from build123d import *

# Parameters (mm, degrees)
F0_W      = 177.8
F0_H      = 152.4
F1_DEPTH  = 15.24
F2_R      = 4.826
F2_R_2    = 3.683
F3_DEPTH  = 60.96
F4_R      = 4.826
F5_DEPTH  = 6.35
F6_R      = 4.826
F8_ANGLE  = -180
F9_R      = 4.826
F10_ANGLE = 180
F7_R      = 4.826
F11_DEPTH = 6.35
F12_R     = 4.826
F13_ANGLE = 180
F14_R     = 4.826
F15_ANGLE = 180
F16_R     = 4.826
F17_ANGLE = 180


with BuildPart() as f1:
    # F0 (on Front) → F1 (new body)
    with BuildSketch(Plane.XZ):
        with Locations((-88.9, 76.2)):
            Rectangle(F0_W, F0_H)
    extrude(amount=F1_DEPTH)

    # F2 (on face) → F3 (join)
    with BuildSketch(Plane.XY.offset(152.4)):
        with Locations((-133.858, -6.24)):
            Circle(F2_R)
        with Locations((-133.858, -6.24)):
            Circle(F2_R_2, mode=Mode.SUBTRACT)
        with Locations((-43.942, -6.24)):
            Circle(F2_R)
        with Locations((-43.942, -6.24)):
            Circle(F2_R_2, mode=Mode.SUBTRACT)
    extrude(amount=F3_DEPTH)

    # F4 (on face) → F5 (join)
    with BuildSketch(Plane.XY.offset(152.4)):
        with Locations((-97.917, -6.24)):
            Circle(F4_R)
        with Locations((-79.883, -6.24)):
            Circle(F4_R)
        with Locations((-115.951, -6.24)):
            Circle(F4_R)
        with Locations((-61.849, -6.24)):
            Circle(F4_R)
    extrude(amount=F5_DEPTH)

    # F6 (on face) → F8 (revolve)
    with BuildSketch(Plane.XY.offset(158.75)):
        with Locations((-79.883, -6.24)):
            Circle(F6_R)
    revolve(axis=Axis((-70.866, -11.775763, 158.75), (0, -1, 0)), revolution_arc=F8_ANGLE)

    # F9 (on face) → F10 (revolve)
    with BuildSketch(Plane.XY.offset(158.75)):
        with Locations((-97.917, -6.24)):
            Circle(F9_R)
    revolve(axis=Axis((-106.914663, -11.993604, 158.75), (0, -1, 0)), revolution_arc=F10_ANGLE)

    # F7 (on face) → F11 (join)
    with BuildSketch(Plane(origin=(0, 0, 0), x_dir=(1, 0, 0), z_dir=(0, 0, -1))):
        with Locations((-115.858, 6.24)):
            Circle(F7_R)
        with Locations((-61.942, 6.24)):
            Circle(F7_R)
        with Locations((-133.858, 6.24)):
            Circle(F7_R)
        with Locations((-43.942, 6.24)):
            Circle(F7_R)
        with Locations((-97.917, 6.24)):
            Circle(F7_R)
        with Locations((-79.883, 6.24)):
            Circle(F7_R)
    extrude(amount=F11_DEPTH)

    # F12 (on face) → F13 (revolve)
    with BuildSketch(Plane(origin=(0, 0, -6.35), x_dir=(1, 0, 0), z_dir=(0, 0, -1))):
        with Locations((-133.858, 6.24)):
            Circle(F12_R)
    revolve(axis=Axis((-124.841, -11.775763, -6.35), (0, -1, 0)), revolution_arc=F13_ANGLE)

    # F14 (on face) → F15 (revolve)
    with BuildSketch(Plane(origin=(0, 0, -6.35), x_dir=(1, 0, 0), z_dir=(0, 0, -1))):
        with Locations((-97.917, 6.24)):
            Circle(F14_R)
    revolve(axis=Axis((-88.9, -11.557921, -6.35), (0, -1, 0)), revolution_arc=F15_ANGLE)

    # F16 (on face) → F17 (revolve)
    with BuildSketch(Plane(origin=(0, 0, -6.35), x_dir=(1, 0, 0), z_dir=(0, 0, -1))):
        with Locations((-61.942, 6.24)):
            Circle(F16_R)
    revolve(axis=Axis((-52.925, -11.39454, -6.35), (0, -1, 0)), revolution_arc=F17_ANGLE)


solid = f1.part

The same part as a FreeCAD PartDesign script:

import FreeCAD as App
import Part
import Sketcher
from FreeCAD import Vector
Q = App.Units.Quantity

doc = App.newDocument("Part")
body = doc.addObject("PartDesign::Body", "Body")

# Sketch on XZ plane
sketch1 = body.newObject("Sketcher::SketchObject", "Sketch")
sketch1.AttachmentSupport = (doc.getObject("XZ_Plane"), [""])
sketch1.MapMode = "FlatFace"
sketch1.addGeometry(Part.LineSegment(Vector(-178, 152, 0), Vector(-178, 0, 0)), False)
sketch1.addGeometry(Part.LineSegment(Vector(-178, 0, 0), Vector(0, 0, 0)), False)
sketch1.addGeometry(Part.LineSegment(Vector(0, 0, 0), Vector(0, 152, 0)), False)
sketch1.addGeometry(Part.LineSegment(Vector(0, 152, 0), Vector(-178, 152, 0)), False)
sketch1.addConstraint(Sketcher.Constraint("Coincident", 0, 2, 1, 1))
sketch1.addConstraint(Sketcher.Constraint("Coincident", 1, 2, 2, 1))
sketch1.addConstraint(Sketcher.Constraint("Coincident", 2, 2, 3, 1))
sketch1.addConstraint(Sketcher.Constraint("Coincident", 3, 2, 0, 1))
sketch1.addConstraint(Sketcher.Constraint("Vertical", 0))
sketch1.addConstraint(Sketcher.Constraint("Horizontal", 1))
sketch1.addConstraint(Sketcher.Constraint("Vertical", 2))
sketch1.addConstraint(Sketcher.Constraint("Horizontal", 3))
sketch1.addConstraint(Sketcher.Constraint("Coincident", 1, 2, -1, 1))
sketch1.addConstraint(Sketcher.Constraint("DistanceX", 1, 1, 1, 2, Q("7 in")))
sketch1.addConstraint(Sketcher.Constraint("DistanceY", 0, 2, 0, 1, Q("6 in")))
pad1 = body.newObject("PartDesign::Pad", "Pad")
pad1.Profile = sketch1
pad1.Length = Q("0.6 in")

# Sketch on XY plane
sketch2 = body.newObject("Sketcher::SketchObject", "Sketch001")
sketch2.AttachmentSupport = (doc.getObject("XY_Plane"), [""])
sketch2.MapMode = "FlatFace"
sketch2.AttachmentOffset = App.Placement(Vector(0, 0, 6 * 25.4), App.Rotation())
sketch2.addGeometry(Part.Circle(Vector(-133.9, -6.2, 0), Vector(0, 0, 1), 4.8), False)
sketch2.addGeometry(Part.Circle(Vector(-133.9, -6.2, 0), Vector(0, 0, 1), 3.7), False)
sketch2.addGeometry(Part.Circle(Vector(-43.9, -6.2, 0), Vector(0, 0, 1), 4.8), False)
sketch2.addGeometry(Part.Circle(Vector(-43.9, -6.2, 0), Vector(0, 0, 1), 3.7), False)
sketch2.addConstraint(Sketcher.Constraint("Coincident", 1, 3, 0, 3))
sketch2.addConstraint(Sketcher.Constraint("Coincident", 3, 3, 2, 3))
sketch2.addConstraint(Sketcher.Constraint("Equal", 0, 2))
sketch2.addConstraint(Sketcher.Constraint("Equal", 1, 3))
sketch2.addConstraint(Sketcher.Constraint("Horizontal", 1, 3, 2, 3))
sketch2.addConstraint(Sketcher.Constraint("Diameter", 0, Q("0.38 in")))
sketch2.addConstraint(Sketcher.Constraint("Diameter", 1, Q("0.29 in")))
sketch2.addConstraint(Sketcher.Constraint("DistanceX", 0, 3, -1, 1, Q("5.27 in")))
sketch2.addConstraint(Sketcher.Constraint("DistanceX", 2, 3, -1, 1, Q("1.73 in")))
sketch2.addConstraint(Sketcher.Constraint("DistanceY", 0, 3, -1, 1, Q("6.24 mm")))
pad2 = body.newObject("PartDesign::Pad", "Pad001")
pad2.Profile = sketch2
pad2.Length = Q("2.4 in")

# Sketch on XY plane
sketch3 = body.newObject("Sketcher::SketchObject", "Sketch002")
sketch3.AttachmentSupport = (doc.getObject("XY_Plane"), [""])
sketch3.MapMode = "FlatFace"
sketch3.AttachmentOffset = App.Placement(Vector(0, 0, 6 * 25.4), App.Rotation())
sketch3.addGeometry(Part.Circle(Vector(-97.9, -6.2, 0), Vector(0, 0, 1), 4.8), False)
sketch3.addGeometry(Part.Circle(Vector(-79.9, -6.2, 0), Vector(0, 0, 1), 4.8), False)
sketch3.addGeometry(Part.Circle(Vector(-116, -6.2, 0), Vector(0, 0, 1), 4.8), False)
sketch3.addGeometry(Part.Circle(Vector(-61.8, -6.2, 0), Vector(0, 0, 1), 4.8), False)
sketch3.addConstraint(Sketcher.Constraint("Equal", 0, 1))
sketch3.addConstraint(Sketcher.Constraint("Equal", 1, 2))
sketch3.addConstraint(Sketcher.Constraint("Equal", 2, 3))
sketch3.addConstraint(Sketcher.Constraint("Horizontal", 0, 3, 1, 3))
sketch3.addConstraint(Sketcher.Constraint("Horizontal", 1, 3, 2, 3))
sketch3.addConstraint(Sketcher.Constraint("Horizontal", 2, 3, 3, 3))
sketch3.addConstraint(Sketcher.Constraint("Diameter", 0, Q("0.38 in")))
sketch3.addConstraint(Sketcher.Constraint("DistanceX", 0, 3, 1, 3, Q("0.71 in")))
sketch3.addConstraint(Sketcher.Constraint("DistanceX", 2, 3, 0, 3, Q("0.71 in")))
sketch3.addConstraint(Sketcher.Constraint("DistanceX", 1, 3, 3, 3, Q("0.71 in")))
sketch3.addConstraint(Sketcher.Constraint("DistanceX", 0, 3, -1, 1, Q("3.855 in")))
sketch3.addConstraint(Sketcher.Constraint("DistanceY", 0, 3, -1, 1, Q("6.24 mm")))
pad3 = body.newObject("PartDesign::Pad", "Pad002")
pad3.Profile = sketch3
pad3.Length = Q("0.25 in")

# Sketch on XY plane
sketch4 = body.newObject("Sketcher::SketchObject", "Sketch003")
sketch4.AttachmentSupport = (doc.getObject("XY_Plane"), [""])
sketch4.MapMode = "FlatFace"
sketch4.AttachmentOffset = App.Placement(Vector(0, 0, 6.25 * 25.4), App.Rotation())
sketch4.addGeometry(Part.Circle(Vector(-79.9, -6.2, 0), Vector(0, 0, 1), 4.8), False)
sketch4.addGeometry(Part.LineSegment(Vector(-70.9, -6.2, 0), Vector(-70.9, -16.2, 0)), True)  # axis
sketch4.addConstraint(Sketcher.Constraint("Vertical", 1))
sketch4.addConstraint(Sketcher.Constraint("Horizontal", 0, 3, 1, 1))
sketch4.addConstraint(Sketcher.Constraint("Diameter", 0, Q("0.38 in")))
sketch4.addConstraint(Sketcher.Constraint("DistanceX", 1, 1, -1, 1, Q("2.79 in")))
sketch4.addConstraint(Sketcher.Constraint("DistanceX", 0, 3, -1, 1, Q("3.145 in")))
sketch4.addConstraint(Sketcher.Constraint("DistanceY", 1, 2, 1, 1, Q("10 mm")))
sketch4.addConstraint(Sketcher.Constraint("DistanceY", 0, 3, -1, 1, Q("6.24 mm")))
revolution = body.newObject("PartDesign::Revolution", "Revolution")
revolution.Profile = sketch4
revolution.ReferenceAxis = (sketch4, ["Axis0"])
revolution.Angle = 180
revolution.Reversed = True

# Sketch on XY plane
sketch5 = body.newObject("Sketcher::SketchObject", "Sketch004")
sketch5.AttachmentSupport = (doc.getObject("XY_Plane"), [""])
sketch5.MapMode = "FlatFace"
sketch5.AttachmentOffset = App.Placement(Vector(0, 0, 6.25 * 25.4), App.Rotation())
sketch5.addGeometry(Part.Circle(Vector(-97.9, -6.2, 0), Vector(0, 0, 1), 4.8), False)
sketch5.addGeometry(Part.LineSegment(Vector(-106.9, -6.2, 0), Vector(-106.9, -16.2, 0)), True)  # axis
sketch5.addConstraint(Sketcher.Constraint("Vertical", 1))
sketch5.addConstraint(Sketcher.Constraint("Horizontal", 0, 3, 1, 1))
sketch5.addConstraint(Sketcher.Constraint("Diameter", 0, Q("0.38 in")))
sketch5.addConstraint(Sketcher.Constraint("DistanceX", 0, 3, -1, 1, Q("3.855 in")))
sketch5.addConstraint(Sketcher.Constraint("DistanceY", 1, 2, 1, 1, Q("10 mm")))
sketch5.addConstraint(Sketcher.Constraint("DistanceY", 0, 3, -1, 1, Q("6.24 mm")))
sketch5.addConstraint(Sketcher.Constraint("DistanceX", 1, 1, -1, 1, Q("106.914663 mm")))
revolution2 = body.newObject("PartDesign::Revolution", "Revolution001")
revolution2.Profile = sketch5
revolution2.ReferenceAxis = (sketch5, ["Axis0"])
revolution2.Angle = 180

# Sketch on XY plane
sketch6 = body.newObject("Sketcher::SketchObject", "Sketch005")
sketch6.AttachmentSupport = (doc.getObject("XY_Plane"), [""])
sketch6.MapMode = "FlatFace"
sketch6.addGeometry(Part.Circle(Vector(-115.9, -6.2, 0), Vector(0, 0, 1), 4.8), False)
sketch6.addGeometry(Part.Circle(Vector(-61.9, -6.2, 0), Vector(0, 0, 1), 4.8), False)
sketch6.addGeometry(Part.Circle(Vector(-133.9, -6.2, 0), Vector(0, 0, 1), 4.8), False)
sketch6.addGeometry(Part.Circle(Vector(-43.9, -6.2, 0), Vector(0, 0, 1), 4.8), False)
sketch6.addGeometry(Part.Circle(Vector(-97.9, -6.2, 0), Vector(0, 0, 1), 4.8), False)
sketch6.addGeometry(Part.Circle(Vector(-79.9, -6.2, 0), Vector(0, 0, 1), 4.8), False)
sketch6.addConstraint(Sketcher.Constraint("Equal", 0, 1))
sketch6.addConstraint(Sketcher.Constraint("Equal", 1, 2))
sketch6.addConstraint(Sketcher.Constraint("Equal", 2, 3))
sketch6.addConstraint(Sketcher.Constraint("Equal", 3, 4))
sketch6.addConstraint(Sketcher.Constraint("Equal", 4, 5))
sketch6.addConstraint(Sketcher.Constraint("Horizontal", 0, 3, 1, 3))
sketch6.addConstraint(Sketcher.Constraint("Horizontal", 1, 3, 2, 3))
sketch6.addConstraint(Sketcher.Constraint("Horizontal", 2, 3, 3, 3))
sketch6.addConstraint(Sketcher.Constraint("Horizontal", 3, 3, 4, 3))
sketch6.addConstraint(Sketcher.Constraint("Horizontal", 4, 3, 5, 3))
sketch6.addConstraint(Sketcher.Constraint("Diameter", 0, Q("0.38 in")))
sketch6.addConstraint(Sketcher.Constraint("DistanceX", 2, 3, -1, 1, Q("5.27 in")))
sketch6.addConstraint(Sketcher.Constraint("DistanceX", 3, 3, -1, 1, Q("1.73 in")))
sketch6.addConstraint(Sketcher.Constraint("DistanceX", 4, 3, 5, 3, Q("0.71 in")))
sketch6.addConstraint(Sketcher.Constraint("DistanceX", 4, 3, -1, 1, Q("3.855 in")))
sketch6.addConstraint(Sketcher.Constraint("DistanceX", 0, 3, -1, 1, Q("115.858 mm")))
sketch6.addConstraint(Sketcher.Constraint("DistanceY", 0, 3, -1, 1, Q("6.24 mm")))
sketch6.addConstraint(Sketcher.Constraint("DistanceX", 1, 3, -1, 1, Q("61.942 mm")))
pad4 = body.newObject("PartDesign::Pad", "Pad003")
pad4.Profile = sketch6
pad4.Length = Q("0.25 in")
pad4.Reversed = True

# Sketch on XY plane
sketch7 = body.newObject("Sketcher::SketchObject", "Sketch006")
sketch7.AttachmentSupport = (doc.getObject("XY_Plane"), [""])
sketch7.MapMode = "FlatFace"
sketch7.AttachmentOffset = App.Placement(Vector(0, 0, -0.25 * 25.4), App.Rotation())
sketch7.addGeometry(Part.Circle(Vector(-133.9, -6.2, 0), Vector(0, 0, 1), 4.8), False)
sketch7.addGeometry(Part.LineSegment(Vector(-124.8, -6.2, 0), Vector(-124.8, -16.2, 0)), True)  # axis
sketch7.addConstraint(Sketcher.Constraint("Vertical", 1))
sketch7.addConstraint(Sketcher.Constraint("Horizontal", 0, 3, 1, 1))
sketch7.addConstraint(Sketcher.Constraint("Diameter", 0, Q("0.38 in")))
sketch7.addConstraint(Sketcher.Constraint("DistanceX", 0, 3, -1, 1, Q("5.27 in")))
sketch7.addConstraint(Sketcher.Constraint("DistanceX", 1, 1, -1, 1, Q("4.915 in")))
sketch7.addConstraint(Sketcher.Constraint("DistanceY", 1, 2, 1, 1, Q("10 mm")))
sketch7.addConstraint(Sketcher.Constraint("DistanceY", 0, 3, -1, 1, Q("6.24 mm")))
revolution3 = body.newObject("PartDesign::Revolution", "Revolution002")
revolution3.Profile = sketch7
revolution3.ReferenceAxis = (sketch7, ["Axis0"])
revolution3.Angle = 180

# Sketch on XY plane
sketch8 = body.newObject("Sketcher::SketchObject", "Sketch007")
sketch8.AttachmentSupport = (doc.getObject("XY_Plane"), [""])
sketch8.MapMode = "FlatFace"
sketch8.AttachmentOffset = App.Placement(Vector(0, 0, -0.25 * 25.4), App.Rotation())
sketch8.addGeometry(Part.Circle(Vector(-97.9, -6.2, 0), Vector(0, 0, 1), 4.8), False)
sketch8.addGeometry(Part.LineSegment(Vector(-88.9, -6.2, 0), Vector(-88.9, -16.2, 0)), True)  # axis
sketch8.addConstraint(Sketcher.Constraint("Vertical", 1))
sketch8.addConstraint(Sketcher.Constraint("Horizontal", 0, 3, 1, 1))
sketch8.addConstraint(Sketcher.Constraint("Diameter", 0, Q("0.38 in")))
sketch8.addConstraint(Sketcher.Constraint("DistanceX", 1, 1, -1, 1, Q("3.5 in")))
sketch8.addConstraint(Sketcher.Constraint("DistanceX", 0, 3, -1, 1, Q("3.855 in")))
sketch8.addConstraint(Sketcher.Constraint("DistanceY", 1, 2, 1, 1, Q("10 mm")))
sketch8.addConstraint(Sketcher.Constraint("DistanceY", 0, 3, -1, 1, Q("6.24 mm")))
revolution4 = body.newObject("PartDesign::Revolution", "Revolution003")
revolution4.Profile = sketch8
revolution4.ReferenceAxis = (sketch8, ["Axis0"])
revolution4.Angle = 180

# Sketch on XY plane
sketch9 = body.newObject("Sketcher::SketchObject", "Sketch008")
sketch9.AttachmentSupport = (doc.getObject("XY_Plane"), [""])
sketch9.MapMode = "FlatFace"
sketch9.AttachmentOffset = App.Placement(Vector(0, 0, -0.25 * 25.4), App.Rotation())
sketch9.addGeometry(Part.Circle(Vector(-61.9, -6.2, 0), Vector(0, 0, 1), 4.8), False)
sketch9.addGeometry(Part.LineSegment(Vector(-52.9, -6.2, 0), Vector(-52.9, -16.2, 0)), True)  # axis
sketch9.addConstraint(Sketcher.Constraint("Vertical", 1))
sketch9.addConstraint(Sketcher.Constraint("Horizontal", 0, 3, 1, 1))
sketch9.addConstraint(Sketcher.Constraint("Diameter", 0, Q("0.38 in")))
sketch9.addConstraint(Sketcher.Constraint("DistanceX", 0, 3, 1, 1, Q("0.355 in")))
sketch9.addConstraint(Sketcher.Constraint("DistanceY", 1, 2, 1, 1, Q("10 mm")))
sketch9.addConstraint(Sketcher.Constraint("DistanceX", 0, 3, -1, 1, Q("61.942 mm")))
sketch9.addConstraint(Sketcher.Constraint("DistanceY", 0, 3, -1, 1, Q("6.24 mm")))
revolution5 = body.newObject("PartDesign::Revolution", "Revolution004")
revolution5.Profile = sketch9
revolution5.ReferenceAxis = (sketch9, ["Axis0"])
revolution5.Angle = 180

doc.recompute()
